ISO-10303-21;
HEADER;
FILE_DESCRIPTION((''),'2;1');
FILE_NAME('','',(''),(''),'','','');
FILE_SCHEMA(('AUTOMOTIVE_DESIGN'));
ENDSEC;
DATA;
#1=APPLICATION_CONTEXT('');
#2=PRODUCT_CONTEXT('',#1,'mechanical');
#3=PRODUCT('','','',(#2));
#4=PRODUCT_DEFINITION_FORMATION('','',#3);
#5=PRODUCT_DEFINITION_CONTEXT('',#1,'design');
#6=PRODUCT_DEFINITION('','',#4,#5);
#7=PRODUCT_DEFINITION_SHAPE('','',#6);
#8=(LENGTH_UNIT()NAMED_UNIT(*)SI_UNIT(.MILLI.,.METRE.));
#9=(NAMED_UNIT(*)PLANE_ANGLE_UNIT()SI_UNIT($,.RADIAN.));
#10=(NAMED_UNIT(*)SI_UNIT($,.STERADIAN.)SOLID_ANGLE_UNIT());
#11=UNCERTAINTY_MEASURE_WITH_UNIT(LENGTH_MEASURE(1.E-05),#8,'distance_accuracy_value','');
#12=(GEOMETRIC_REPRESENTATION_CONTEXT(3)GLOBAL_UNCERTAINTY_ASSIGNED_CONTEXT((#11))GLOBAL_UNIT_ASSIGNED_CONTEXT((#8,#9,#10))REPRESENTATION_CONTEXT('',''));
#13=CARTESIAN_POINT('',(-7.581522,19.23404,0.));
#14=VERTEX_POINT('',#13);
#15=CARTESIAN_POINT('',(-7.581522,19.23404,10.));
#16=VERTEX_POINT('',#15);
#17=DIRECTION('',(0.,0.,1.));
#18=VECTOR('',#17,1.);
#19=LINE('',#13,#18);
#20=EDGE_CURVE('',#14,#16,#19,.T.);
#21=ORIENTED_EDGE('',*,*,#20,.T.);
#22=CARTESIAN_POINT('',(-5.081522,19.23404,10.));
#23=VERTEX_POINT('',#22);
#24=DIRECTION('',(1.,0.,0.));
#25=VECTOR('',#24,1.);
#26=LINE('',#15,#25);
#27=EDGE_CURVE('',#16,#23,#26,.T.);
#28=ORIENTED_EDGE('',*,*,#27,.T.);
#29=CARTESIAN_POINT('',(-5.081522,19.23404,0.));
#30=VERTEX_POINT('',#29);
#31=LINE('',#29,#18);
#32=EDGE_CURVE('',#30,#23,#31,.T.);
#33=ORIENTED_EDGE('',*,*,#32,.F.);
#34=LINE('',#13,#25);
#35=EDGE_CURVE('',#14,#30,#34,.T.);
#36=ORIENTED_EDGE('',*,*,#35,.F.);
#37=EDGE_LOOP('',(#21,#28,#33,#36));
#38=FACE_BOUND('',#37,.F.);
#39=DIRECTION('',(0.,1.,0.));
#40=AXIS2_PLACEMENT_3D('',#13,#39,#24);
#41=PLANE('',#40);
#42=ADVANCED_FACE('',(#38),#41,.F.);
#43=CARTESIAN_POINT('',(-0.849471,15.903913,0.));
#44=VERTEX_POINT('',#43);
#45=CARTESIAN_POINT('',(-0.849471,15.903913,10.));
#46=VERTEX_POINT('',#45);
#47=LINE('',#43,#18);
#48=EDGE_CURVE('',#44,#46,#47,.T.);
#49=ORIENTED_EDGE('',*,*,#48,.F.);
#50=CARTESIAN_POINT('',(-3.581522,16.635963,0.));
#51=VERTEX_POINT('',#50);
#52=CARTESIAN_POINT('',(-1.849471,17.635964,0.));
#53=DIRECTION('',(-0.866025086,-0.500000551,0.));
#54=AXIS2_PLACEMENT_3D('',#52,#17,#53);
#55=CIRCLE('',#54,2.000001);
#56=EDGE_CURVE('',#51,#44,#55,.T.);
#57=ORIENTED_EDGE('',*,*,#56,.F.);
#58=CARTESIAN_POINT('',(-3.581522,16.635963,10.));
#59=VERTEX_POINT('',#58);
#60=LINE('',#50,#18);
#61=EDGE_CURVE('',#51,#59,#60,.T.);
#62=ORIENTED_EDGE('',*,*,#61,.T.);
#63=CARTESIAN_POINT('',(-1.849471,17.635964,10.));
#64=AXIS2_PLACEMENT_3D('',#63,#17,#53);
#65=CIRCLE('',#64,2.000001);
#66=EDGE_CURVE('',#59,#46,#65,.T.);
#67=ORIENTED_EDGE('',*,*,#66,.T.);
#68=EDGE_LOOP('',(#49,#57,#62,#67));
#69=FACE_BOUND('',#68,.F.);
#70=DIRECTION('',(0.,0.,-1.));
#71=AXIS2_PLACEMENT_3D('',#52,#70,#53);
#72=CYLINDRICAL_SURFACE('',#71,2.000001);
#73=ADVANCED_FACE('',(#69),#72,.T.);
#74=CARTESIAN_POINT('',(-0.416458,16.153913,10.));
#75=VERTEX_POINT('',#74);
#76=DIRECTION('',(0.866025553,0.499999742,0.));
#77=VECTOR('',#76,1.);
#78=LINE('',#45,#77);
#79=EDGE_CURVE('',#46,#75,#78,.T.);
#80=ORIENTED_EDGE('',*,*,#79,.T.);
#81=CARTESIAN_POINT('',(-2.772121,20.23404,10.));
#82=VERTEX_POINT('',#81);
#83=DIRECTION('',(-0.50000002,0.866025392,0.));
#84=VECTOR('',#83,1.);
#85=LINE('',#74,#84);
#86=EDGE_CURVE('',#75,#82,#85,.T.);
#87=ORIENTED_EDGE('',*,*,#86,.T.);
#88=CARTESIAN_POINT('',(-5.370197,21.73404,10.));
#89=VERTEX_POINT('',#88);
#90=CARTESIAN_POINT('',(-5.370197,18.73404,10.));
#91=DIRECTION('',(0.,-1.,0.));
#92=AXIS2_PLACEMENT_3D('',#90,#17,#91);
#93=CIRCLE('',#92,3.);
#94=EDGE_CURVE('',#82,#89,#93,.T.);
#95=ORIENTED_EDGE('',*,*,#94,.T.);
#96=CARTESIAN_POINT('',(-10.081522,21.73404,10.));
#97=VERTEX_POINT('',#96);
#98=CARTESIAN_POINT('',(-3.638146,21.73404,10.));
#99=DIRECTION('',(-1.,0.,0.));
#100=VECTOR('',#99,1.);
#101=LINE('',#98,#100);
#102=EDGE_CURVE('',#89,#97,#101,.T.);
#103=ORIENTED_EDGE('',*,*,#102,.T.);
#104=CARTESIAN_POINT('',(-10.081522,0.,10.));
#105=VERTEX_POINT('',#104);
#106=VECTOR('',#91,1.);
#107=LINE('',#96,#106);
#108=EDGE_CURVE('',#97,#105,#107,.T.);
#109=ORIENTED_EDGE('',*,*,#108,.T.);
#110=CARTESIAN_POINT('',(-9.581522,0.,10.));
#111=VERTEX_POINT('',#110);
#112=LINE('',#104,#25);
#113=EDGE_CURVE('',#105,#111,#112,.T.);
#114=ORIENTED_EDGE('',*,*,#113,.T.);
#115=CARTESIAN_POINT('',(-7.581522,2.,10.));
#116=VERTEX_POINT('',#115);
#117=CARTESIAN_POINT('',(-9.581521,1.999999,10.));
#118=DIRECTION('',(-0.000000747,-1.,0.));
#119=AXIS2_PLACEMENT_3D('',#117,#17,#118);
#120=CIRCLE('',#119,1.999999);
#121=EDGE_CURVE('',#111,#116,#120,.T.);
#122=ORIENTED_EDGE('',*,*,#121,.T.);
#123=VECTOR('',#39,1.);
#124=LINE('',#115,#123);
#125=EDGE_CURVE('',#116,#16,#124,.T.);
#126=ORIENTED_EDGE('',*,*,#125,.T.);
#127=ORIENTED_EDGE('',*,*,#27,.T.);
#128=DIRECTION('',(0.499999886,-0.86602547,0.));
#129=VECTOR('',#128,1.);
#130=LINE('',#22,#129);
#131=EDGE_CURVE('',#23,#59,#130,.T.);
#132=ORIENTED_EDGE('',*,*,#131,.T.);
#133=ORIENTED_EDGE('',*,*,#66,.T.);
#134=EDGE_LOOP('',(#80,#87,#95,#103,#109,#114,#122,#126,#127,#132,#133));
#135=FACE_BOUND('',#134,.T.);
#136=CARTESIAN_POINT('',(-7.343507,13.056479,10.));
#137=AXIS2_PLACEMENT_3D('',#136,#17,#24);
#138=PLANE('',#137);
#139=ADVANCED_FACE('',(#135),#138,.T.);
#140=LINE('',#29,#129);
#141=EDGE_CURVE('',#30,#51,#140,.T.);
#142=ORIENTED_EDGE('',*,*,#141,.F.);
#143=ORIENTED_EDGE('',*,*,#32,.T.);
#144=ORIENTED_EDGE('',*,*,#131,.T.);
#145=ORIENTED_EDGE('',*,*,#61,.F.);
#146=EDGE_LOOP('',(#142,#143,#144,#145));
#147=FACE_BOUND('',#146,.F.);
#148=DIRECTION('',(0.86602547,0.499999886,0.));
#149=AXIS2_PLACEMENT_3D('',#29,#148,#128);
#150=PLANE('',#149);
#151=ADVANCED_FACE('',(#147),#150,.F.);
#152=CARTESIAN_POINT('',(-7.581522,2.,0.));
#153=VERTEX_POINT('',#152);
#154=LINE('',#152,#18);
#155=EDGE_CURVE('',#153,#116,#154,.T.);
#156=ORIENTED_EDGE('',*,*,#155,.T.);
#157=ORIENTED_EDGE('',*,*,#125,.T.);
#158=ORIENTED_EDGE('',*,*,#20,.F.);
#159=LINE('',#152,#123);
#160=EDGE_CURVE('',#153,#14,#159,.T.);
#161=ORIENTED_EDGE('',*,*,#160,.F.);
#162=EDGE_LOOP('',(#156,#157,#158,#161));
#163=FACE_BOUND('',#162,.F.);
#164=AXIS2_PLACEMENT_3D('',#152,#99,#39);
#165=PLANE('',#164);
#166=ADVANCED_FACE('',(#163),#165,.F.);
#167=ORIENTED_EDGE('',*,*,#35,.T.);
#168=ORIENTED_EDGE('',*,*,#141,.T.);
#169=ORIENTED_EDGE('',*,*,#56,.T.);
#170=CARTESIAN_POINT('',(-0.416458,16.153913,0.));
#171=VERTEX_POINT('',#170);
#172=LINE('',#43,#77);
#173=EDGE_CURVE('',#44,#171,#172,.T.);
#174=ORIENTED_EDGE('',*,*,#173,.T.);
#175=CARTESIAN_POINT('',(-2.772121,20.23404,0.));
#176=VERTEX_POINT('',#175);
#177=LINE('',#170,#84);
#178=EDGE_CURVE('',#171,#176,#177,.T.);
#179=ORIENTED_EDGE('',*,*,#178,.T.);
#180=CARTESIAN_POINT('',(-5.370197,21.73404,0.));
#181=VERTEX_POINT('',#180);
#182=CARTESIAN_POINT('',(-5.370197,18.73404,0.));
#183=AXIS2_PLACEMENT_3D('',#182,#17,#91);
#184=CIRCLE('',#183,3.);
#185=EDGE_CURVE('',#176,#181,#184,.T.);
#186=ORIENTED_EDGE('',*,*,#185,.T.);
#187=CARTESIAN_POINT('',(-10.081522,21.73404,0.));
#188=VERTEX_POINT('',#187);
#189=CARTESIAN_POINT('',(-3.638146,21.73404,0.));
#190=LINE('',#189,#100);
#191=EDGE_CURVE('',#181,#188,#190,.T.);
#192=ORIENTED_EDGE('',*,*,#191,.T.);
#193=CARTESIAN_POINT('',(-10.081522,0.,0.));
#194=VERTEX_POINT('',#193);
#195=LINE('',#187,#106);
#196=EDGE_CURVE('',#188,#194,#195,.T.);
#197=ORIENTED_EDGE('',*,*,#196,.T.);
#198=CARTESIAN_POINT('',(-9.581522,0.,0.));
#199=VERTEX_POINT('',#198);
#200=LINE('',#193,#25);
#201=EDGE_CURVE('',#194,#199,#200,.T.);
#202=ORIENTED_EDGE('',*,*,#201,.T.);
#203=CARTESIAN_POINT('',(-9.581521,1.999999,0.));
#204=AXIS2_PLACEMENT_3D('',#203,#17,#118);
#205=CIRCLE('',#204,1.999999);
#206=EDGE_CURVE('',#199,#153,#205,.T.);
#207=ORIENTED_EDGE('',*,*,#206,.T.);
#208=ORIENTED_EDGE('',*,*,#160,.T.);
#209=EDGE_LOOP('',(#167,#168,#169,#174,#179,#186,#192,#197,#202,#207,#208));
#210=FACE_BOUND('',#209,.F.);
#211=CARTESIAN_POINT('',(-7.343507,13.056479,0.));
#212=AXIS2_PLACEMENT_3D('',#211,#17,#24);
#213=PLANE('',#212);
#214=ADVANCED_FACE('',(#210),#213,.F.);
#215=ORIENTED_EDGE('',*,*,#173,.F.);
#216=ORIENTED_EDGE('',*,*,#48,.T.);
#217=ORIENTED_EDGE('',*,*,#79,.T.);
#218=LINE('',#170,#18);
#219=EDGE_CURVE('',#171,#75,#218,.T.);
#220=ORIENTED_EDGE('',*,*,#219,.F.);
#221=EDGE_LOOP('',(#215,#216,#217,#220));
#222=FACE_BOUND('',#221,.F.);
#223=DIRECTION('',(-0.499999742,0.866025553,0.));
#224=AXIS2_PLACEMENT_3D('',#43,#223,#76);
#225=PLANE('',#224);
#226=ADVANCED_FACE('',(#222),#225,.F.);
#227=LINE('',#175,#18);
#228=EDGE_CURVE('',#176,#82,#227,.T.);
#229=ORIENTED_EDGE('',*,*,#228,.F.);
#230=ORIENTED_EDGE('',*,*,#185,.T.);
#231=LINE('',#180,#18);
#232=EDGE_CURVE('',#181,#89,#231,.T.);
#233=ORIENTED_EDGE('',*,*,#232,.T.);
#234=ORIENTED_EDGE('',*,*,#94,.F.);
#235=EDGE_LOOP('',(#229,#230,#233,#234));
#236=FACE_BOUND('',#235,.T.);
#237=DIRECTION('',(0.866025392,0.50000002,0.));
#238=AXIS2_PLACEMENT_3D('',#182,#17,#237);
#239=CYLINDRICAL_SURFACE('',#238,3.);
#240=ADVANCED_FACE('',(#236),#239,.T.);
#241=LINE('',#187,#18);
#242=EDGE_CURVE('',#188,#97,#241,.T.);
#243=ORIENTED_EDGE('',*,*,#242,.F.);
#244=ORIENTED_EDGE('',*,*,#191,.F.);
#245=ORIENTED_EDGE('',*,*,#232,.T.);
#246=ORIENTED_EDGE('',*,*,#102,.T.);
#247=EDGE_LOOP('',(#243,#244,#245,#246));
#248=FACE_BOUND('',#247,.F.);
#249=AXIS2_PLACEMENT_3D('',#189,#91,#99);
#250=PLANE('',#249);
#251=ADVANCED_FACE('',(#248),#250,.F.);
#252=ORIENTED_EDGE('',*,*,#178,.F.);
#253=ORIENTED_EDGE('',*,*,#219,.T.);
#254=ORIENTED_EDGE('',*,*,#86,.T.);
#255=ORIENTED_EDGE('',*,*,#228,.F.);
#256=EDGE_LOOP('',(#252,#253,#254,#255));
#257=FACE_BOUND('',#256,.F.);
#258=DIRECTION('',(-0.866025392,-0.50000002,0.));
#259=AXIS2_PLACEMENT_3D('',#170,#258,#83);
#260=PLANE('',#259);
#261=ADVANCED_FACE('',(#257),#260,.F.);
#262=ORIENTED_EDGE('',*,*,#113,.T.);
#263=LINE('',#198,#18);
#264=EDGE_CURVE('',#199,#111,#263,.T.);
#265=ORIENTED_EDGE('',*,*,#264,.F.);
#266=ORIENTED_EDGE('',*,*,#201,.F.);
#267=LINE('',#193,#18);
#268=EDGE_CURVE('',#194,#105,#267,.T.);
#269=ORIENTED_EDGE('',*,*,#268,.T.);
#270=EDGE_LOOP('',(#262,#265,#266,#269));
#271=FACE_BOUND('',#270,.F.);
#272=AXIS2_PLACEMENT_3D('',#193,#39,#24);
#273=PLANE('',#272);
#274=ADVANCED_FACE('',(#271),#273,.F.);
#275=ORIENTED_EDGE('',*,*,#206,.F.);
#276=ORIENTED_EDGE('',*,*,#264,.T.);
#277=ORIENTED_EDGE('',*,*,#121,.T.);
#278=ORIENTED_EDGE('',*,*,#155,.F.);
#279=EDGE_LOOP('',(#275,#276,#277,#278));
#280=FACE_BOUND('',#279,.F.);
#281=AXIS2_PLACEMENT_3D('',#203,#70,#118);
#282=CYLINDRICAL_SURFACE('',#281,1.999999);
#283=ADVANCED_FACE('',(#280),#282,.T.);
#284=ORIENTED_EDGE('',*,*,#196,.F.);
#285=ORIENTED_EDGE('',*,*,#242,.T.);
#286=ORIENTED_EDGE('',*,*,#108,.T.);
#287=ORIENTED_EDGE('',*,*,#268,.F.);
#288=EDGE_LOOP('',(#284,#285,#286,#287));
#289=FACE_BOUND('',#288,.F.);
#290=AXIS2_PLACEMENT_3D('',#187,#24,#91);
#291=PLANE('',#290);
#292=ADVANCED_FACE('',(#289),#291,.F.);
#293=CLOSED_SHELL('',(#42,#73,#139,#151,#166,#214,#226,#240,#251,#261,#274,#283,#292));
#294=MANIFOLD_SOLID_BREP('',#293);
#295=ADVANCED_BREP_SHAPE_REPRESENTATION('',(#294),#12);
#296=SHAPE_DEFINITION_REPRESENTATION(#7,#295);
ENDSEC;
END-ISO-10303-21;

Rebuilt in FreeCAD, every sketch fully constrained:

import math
import FreeCAD as App
import Part
import Sketcher
Q = App.Units.Quantity


def edges_at(feature, points):
    """Names of the edges that pass closest to the given points."""
    edges = feature.Shape.Edges
    near = lambda p: min(range(len(edges)), key=lambda i: edges[i].distToShape(Part.Vertex(*p))[0])
    return sorted({f"Edge{near(p) + 1}" for p in points})

doc = App.newDocument("Part")
params = doc.addObject("Spreadsheet::Sheet", "Params")
for row, (alias, value) in enumerate([
    ("sketch1_radius", "1.999999 mm"),
    ("sketch1_radius2", "2.000001 mm"),
    ("sketch1_length", "3.000001 mm"),
    ("sketch1_width", "2.5 mm"),
    ("sketch1_width2", "0.5 mm"),
    ("pad1_length", "10 mm"),
    ("fillet_radius", "3 mm"),
], start=1):
    params.set(f"A{row}", alias)
    params.set(f"B{row}", "=" + value)
    params.setAlias(f"B{row}", alias)

body = doc.addObject("PartDesign::Body", "Body")

# Sketch on XY plane
sketch1 = body.newObject("Sketcher::SketchObject", "Sketch")
sketch1.AttachmentSupport = (doc.getObject("XY_Plane"), [""])
sketch1.MapMode = "FlatFace"
sketch1.addGeometry([
    Part.ArcOfCircle(Part.Circle(App.Vector(-9.6, 2, 0), App.Vector(0, 0, 1), 2), math.radians(-90), math.radians(0)),  # 0
    Part.LineSegment(App.Vector(-7.6, 2, 0), App.Vector(-7.6, 19.2, 0)),  # 1
    Part.LineSegment(App.Vector(-7.6, 19.2, 0), App.Vector(-5.1, 19.2, 0)),  # 2
    Part.LineSegment(App.Vector(-5.1, 19.2, 0), App.Vector(-3.6, 16.6, 0)),  # 3
    Part.ArcOfCircle(Part.Circle(App.Vector(-1.8, 17.6, 0), App.Vector(0, 0, 1), 2), math.radians(-150), math.radians(-60)),  # 4
    Part.LineSegment(App.Vector(-0.8, 15.9, 0), App.Vector(-0.4, 16.2, 0)),  # 5
    Part.LineSegment(App.Vector(-0.4, 16.2, 0), App.Vector(-3.6, 21.7, 0)),  # 6
    Part.LineSegment(App.Vector(-3.6, 21.7, 0), App.Vector(-10.1, 21.7, 0)),  # 7
    Part.LineSegment(App.Vector(-10.1, 21.7, 0), App.Vector(-10.1, 0, 0)),  # 8
    Part.LineSegment(App.Vector(-10.1, 0, 0), App.Vector(-9.6, 0, 0)),  # 9
], False)
sketch1.addConstraint([
    Sketcher.Constraint("Tangent", 0, 2, 1, 1),
    Sketcher.Constraint("Coincident", 1, 2, 2, 1),
    Sketcher.Constraint("Coincident", 2, 2, 3, 1),
    Sketcher.Constraint("Tangent", 3, 2, 4, 1),
    Sketcher.Constraint("Tangent", 4, 2, 5, 1),
    Sketcher.Constraint("Coincident", 5, 2, 6, 1),
    Sketcher.Constraint("Coincident", 6, 2, 7, 1),
    Sketcher.Constraint("Coincident", 7, 2, 8, 1),
    Sketcher.Constraint("Coincident", 8, 2, 9, 1),
    Sketcher.Constraint("Tangent", 9, 2, 0, 1),
    Sketcher.Constraint("Vertical", 1),
    Sketcher.Constraint("Horizontal", 2),
    Sketcher.Constraint("Horizontal", 7),
    Sketcher.Constraint("Vertical", 8),
    Sketcher.Constraint("Horizontal", 9),
    Sketcher.Constraint("PointOnObject", 8, 2, -1),
    Sketcher.Constraint("Perpendicular", 3, 5),
    Sketcher.Constraint("Perpendicular", 5, 6),
    Sketcher.Constraint("Radius", 0, 1.999999),
    Sketcher.Constraint("Radius", 4, 2.000001),
    Sketcher.Constraint("Angle", 3, Q("-60.000008 deg")),
    Sketcher.Constraint("Distance", 3, 3.000001),
    Sketcher.Constraint("DistanceX", 2, 1, 2, 2, 2.5),
    Sketcher.Constraint("DistanceX", 9, 1, 9, 2, 0.5),
    Sketcher.Constraint("Distance", 5, 0.5),
    Sketcher.Constraint("DistanceY", 2, 2, 6, 2, 2.5),
    Sketcher.Constraint("DistanceY", 1, 1, 1, 2, 17.23404),
    Sketcher.Constraint("DistanceX", 0, 3, -1, 1, 9.581521),
])
sketch1.setExpression("Constraints[18]", "Params.sketch1_radius")
sketch1.setExpression("Constraints[19]", "Params.sketch1_radius2")
sketch1.setExpression("Constraints[21]", "Params.sketch1_length")
sketch1.setExpression("Constraints[22]", "Params.sketch1_width")
sketch1.setExpression("Constraints[23]", "Params.sketch1_width2")
pad1 = body.newObject("PartDesign::Pad", "Pad")
pad1.Profile = sketch1
pad1.setExpression("Length", "Params.pad1_length")
doc.recompute()

fillet = body.newObject("PartDesign::Fillet", "Fillet")
fillet.Base = (pad1, edges_at(pad1, [(-3.638, 21.734, 5)]))
fillet.setExpression("Radius", "Params.fillet_radius")

doc.recompute()
